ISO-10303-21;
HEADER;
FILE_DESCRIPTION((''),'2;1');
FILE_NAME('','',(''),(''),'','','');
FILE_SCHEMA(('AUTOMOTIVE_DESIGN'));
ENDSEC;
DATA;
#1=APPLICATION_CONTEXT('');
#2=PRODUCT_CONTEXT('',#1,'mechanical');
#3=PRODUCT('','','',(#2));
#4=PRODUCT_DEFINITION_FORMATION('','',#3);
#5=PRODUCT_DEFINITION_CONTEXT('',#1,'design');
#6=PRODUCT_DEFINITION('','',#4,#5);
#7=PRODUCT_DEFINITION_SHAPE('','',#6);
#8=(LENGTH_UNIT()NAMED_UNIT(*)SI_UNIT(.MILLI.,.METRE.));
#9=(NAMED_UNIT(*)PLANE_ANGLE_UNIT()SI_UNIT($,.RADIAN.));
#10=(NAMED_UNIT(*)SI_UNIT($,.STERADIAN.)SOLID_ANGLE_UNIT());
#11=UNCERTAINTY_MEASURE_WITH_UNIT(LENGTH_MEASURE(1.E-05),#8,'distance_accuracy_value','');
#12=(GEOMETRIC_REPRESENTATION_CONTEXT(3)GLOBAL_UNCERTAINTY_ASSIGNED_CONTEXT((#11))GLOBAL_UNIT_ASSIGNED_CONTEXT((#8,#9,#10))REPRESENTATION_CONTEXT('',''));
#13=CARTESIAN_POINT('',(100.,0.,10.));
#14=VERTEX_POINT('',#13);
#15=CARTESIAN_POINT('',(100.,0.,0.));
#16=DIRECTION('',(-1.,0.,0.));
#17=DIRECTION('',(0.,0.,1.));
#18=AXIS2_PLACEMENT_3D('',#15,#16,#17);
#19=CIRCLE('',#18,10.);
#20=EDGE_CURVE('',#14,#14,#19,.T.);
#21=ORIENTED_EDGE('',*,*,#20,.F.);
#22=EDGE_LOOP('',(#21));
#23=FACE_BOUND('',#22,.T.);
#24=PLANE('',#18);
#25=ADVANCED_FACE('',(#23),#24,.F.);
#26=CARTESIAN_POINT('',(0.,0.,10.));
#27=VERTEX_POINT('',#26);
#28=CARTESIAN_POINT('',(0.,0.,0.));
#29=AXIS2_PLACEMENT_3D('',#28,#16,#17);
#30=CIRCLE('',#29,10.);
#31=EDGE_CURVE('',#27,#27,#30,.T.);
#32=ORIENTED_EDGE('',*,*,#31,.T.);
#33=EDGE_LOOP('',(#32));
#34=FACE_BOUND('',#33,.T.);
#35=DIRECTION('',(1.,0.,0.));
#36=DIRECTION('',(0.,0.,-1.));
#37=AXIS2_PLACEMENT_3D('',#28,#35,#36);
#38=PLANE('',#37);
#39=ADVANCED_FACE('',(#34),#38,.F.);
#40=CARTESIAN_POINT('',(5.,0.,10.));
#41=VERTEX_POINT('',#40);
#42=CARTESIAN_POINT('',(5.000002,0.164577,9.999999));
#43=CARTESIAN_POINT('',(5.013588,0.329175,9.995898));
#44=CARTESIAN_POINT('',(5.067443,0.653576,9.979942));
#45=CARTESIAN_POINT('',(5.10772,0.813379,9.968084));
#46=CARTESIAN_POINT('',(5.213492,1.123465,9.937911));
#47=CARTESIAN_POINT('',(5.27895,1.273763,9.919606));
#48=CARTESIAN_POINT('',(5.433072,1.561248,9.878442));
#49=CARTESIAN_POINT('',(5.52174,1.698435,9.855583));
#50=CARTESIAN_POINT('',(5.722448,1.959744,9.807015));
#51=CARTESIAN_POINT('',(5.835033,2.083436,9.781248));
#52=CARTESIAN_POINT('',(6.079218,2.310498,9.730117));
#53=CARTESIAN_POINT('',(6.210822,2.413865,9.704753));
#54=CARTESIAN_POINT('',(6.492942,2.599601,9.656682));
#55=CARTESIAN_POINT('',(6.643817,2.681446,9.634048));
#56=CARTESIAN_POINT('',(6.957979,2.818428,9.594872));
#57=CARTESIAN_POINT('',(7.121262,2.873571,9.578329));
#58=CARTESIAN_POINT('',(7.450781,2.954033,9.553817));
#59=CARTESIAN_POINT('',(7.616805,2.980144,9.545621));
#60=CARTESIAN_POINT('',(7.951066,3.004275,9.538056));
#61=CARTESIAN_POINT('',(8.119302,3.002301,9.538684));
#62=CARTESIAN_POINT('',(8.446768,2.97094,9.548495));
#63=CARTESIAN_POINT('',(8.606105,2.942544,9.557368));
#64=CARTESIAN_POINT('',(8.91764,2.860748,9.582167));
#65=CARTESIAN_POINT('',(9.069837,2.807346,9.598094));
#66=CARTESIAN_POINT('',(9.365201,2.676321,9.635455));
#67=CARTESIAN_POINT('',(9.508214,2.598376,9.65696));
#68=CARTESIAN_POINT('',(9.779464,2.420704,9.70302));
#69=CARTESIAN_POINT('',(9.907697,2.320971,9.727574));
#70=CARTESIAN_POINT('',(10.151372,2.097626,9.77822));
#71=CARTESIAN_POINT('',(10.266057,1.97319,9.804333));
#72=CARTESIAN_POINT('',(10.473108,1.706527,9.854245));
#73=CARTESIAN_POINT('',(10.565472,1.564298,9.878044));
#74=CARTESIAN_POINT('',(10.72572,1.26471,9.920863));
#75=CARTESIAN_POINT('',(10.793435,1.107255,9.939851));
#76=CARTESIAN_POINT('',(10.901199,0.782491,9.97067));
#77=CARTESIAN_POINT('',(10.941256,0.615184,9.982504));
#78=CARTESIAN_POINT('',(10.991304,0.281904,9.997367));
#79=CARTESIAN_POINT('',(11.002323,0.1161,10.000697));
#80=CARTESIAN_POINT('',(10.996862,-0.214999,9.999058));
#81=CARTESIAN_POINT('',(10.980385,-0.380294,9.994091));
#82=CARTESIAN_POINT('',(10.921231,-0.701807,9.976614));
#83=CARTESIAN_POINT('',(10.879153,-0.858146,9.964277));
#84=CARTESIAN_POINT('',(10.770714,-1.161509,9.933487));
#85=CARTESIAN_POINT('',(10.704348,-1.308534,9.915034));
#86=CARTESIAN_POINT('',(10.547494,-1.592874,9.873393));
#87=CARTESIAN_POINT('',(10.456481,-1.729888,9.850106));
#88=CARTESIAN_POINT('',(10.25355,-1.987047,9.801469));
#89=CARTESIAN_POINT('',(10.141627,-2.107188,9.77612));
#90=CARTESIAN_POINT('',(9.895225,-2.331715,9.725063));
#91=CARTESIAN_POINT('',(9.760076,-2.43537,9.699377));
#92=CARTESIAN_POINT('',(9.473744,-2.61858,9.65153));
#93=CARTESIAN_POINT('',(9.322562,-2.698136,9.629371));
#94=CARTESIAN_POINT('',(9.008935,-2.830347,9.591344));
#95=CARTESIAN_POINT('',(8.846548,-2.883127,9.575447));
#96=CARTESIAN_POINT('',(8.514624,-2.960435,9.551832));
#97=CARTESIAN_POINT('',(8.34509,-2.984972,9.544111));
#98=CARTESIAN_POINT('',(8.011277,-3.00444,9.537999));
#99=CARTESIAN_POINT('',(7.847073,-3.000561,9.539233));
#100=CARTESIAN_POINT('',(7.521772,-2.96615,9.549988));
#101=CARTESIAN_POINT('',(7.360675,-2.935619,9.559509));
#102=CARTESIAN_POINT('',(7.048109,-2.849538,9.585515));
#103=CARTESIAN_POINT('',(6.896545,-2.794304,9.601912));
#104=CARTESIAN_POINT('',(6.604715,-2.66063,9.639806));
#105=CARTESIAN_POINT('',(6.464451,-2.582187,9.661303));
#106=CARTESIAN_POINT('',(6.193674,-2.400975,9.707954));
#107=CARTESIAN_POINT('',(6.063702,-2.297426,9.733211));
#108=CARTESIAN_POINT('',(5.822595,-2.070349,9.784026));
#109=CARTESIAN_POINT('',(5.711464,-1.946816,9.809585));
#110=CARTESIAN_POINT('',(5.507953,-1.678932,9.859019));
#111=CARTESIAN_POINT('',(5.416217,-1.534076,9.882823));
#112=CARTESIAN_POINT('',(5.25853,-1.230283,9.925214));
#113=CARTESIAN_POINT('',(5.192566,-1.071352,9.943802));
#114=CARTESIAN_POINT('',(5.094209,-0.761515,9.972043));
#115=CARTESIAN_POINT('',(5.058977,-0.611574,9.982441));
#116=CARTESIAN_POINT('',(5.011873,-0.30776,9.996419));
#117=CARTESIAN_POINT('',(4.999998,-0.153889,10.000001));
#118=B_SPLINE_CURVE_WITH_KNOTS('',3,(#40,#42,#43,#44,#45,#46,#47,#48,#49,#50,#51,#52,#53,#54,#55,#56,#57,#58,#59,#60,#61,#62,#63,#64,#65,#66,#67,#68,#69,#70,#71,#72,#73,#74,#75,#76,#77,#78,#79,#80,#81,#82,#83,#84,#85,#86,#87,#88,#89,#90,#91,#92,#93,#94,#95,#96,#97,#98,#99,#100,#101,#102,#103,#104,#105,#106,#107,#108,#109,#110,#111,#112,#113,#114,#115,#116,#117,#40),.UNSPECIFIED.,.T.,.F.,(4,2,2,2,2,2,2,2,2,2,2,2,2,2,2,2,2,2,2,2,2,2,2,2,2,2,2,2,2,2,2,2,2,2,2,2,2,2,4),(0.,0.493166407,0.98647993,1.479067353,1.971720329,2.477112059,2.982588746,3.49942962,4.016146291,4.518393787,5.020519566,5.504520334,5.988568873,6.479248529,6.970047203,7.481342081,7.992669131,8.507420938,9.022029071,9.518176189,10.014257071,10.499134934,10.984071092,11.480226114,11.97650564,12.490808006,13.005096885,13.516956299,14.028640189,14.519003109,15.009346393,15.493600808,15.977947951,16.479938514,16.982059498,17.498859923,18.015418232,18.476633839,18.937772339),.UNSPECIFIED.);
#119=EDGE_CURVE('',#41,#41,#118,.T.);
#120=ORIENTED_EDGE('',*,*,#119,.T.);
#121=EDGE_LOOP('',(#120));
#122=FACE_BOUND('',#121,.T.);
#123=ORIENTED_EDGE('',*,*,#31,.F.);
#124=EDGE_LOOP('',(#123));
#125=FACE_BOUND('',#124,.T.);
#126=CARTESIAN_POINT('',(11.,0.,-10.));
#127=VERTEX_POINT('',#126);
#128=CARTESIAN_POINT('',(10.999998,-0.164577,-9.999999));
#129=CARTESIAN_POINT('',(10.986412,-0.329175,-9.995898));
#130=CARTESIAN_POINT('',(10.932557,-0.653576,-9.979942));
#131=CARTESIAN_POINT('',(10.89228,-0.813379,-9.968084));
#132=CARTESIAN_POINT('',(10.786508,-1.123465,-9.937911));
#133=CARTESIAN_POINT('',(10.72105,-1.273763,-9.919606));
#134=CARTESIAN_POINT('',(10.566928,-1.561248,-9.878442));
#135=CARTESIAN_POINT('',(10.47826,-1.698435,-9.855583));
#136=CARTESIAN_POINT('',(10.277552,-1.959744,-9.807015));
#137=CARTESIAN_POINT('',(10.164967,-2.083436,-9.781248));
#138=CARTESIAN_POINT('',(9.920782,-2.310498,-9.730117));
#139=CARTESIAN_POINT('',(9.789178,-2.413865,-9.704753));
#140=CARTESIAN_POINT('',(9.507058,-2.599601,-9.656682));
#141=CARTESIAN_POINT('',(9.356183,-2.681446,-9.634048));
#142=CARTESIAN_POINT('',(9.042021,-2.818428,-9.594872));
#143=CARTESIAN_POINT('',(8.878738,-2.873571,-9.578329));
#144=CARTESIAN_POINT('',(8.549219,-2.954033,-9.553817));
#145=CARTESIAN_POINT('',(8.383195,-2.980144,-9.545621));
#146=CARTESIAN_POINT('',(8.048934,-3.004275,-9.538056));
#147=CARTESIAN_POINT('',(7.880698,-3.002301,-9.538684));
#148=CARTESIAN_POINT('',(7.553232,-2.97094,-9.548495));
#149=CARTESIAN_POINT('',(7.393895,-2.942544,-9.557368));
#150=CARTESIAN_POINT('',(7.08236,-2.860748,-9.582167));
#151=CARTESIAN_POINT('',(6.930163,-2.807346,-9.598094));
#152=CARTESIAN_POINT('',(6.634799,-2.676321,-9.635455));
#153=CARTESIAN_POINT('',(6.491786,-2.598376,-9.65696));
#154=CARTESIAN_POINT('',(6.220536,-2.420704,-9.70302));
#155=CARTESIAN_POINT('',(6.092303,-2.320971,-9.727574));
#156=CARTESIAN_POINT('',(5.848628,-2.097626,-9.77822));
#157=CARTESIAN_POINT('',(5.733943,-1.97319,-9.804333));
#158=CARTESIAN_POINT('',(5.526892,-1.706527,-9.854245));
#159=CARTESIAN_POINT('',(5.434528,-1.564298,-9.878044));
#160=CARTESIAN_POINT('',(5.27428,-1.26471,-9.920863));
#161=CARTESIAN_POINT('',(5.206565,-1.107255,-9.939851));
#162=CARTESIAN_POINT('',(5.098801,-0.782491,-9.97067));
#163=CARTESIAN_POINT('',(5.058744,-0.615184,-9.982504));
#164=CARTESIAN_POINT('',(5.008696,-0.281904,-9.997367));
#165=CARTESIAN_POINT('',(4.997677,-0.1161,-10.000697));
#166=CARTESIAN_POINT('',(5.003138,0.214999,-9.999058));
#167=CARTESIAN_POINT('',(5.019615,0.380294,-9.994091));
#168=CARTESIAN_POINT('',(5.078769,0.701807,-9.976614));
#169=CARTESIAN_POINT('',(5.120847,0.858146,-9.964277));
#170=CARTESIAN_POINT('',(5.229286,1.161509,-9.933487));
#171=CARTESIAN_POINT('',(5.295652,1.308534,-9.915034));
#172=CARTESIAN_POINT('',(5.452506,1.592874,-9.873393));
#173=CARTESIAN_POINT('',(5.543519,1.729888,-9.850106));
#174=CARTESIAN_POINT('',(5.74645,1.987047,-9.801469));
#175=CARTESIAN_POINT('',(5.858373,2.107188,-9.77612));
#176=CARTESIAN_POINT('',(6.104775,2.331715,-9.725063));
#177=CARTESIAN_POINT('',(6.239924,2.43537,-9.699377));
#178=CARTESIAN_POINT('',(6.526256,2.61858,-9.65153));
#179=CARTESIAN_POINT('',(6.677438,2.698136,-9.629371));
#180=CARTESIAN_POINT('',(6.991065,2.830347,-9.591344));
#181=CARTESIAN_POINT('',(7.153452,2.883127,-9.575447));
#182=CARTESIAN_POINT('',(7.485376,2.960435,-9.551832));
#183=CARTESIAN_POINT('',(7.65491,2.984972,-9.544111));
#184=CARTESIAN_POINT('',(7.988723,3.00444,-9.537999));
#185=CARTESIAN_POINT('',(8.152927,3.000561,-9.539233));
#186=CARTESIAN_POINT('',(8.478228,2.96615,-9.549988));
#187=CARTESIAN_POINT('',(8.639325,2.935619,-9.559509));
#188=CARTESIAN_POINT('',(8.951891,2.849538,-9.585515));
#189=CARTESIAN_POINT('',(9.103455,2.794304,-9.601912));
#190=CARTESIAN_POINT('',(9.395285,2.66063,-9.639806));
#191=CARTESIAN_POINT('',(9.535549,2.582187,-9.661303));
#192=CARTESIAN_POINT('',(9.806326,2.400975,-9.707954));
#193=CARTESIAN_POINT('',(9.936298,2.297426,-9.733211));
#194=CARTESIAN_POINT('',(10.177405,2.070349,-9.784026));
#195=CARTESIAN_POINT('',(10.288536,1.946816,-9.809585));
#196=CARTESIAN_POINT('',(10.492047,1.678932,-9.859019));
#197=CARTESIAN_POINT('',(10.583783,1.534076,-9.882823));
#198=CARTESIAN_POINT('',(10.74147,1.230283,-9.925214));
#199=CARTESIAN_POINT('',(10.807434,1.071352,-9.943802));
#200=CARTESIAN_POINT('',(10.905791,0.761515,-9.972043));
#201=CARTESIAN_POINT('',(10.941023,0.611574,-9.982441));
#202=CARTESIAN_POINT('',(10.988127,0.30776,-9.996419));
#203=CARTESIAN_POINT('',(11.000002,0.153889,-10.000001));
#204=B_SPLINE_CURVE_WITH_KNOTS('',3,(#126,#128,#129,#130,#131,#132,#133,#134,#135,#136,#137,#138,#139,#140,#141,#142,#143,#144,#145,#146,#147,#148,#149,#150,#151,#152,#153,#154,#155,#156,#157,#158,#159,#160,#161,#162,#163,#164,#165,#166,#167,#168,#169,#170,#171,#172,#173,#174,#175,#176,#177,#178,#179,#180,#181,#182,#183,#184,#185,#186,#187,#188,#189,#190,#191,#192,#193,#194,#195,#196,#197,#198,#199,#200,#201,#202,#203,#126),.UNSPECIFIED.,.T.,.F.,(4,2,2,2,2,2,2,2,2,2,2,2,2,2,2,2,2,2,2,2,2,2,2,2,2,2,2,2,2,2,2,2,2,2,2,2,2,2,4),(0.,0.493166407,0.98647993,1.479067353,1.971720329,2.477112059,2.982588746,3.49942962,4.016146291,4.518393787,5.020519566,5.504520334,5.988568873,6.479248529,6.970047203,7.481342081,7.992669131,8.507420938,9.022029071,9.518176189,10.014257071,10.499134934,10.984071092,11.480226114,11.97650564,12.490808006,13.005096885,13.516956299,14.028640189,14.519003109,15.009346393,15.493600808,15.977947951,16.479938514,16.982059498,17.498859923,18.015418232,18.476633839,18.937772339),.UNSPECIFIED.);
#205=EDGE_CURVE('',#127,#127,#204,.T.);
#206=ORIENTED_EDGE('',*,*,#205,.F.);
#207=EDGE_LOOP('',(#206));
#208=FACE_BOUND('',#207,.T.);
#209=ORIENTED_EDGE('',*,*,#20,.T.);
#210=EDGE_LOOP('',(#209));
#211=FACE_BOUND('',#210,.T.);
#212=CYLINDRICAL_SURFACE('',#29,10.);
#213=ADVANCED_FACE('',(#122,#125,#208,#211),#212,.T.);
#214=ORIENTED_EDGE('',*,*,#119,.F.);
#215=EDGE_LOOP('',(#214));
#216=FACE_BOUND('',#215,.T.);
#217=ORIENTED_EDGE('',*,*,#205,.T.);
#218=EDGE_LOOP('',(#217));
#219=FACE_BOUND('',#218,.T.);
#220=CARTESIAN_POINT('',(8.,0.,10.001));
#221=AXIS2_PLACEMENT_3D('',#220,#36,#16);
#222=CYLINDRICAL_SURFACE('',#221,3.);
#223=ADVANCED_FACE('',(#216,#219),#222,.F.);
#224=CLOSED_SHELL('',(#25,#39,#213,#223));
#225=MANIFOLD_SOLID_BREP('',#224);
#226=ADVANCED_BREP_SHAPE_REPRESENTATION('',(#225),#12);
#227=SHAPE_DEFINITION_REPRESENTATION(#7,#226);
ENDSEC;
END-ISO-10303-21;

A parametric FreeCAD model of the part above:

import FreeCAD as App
import Part
import Sketcher

V = App.Vector
Q = App.Units.Quantity

doc = App.newDocument("Part")
params = doc.addObject("Spreadsheet::Sheet", "Params")
for row, (alias, value) in enumerate([
    ("sketch1_width", "100 mm"),
    ("sketch1_height", "10 mm"),
    ("revolution_angle", "360 deg"),
    ("sketch2_diameter", "6 mm"),
    ("pocket1_length", "10 mm"),
    ("sketch3_diameter", "6 mm"),
], start=1):
    params.set(f"A{row}", alias)
    params.set(f"B{row}", "=" + value)
    params.setAlias(f"B{row}", alias)

body = doc.addObject("PartDesign::Body", "Body")

sketch1 = doc.addObject("Sketcher::SketchObject", "Sketch")
body.addObject(sketch1)
sketch1.AttachmentSupport = (doc.XY_Plane, [""])
sketch1.MapMode = "FlatFace"
sketch1.addGeometry([
    Part.LineSegment(V(0, 10, 0), V(0, 0, 0)),
    Part.LineSegment(V(0, 0, 0), V(100, 0, 0)),
    Part.LineSegment(V(100, 0, 0), V(100, 10, 0)),
    Part.LineSegment(V(100, 10, 0), V(0, 10, 0)),
], False)
sketch1.addConstraint([
    Sketcher.Constraint("Coincident", 0, 2, 1, 1),
    Sketcher.Constraint("Coincident", 1, 2, 2, 1),
    Sketcher.Constraint("Coincident", 2, 2, 3, 1),
    Sketcher.Constraint("Coincident", 3, 2, 0, 1),
    Sketcher.Constraint("Vertical", 0),
    Sketcher.Constraint("Horizontal", 1),
    Sketcher.Constraint("Vertical", 2),
    Sketcher.Constraint("Horizontal", 3),
    Sketcher.Constraint("Coincident", 0, 2, -1, 1),
    Sketcher.Constraint("DistanceX", 1, 1, 1, 2, Q("100 mm")),
    Sketcher.Constraint("DistanceY", 0, 2, 0, 1, Q("10 mm")),
])
sketch1.setExpression("Constraints[9]", "Params.sketch1_width")
sketch1.setExpression("Constraints[10]", "Params.sketch1_height")
revolution = doc.addObject("PartDesign::Revolution", "Revolution")
body.addObject(revolution)
revolution.Profile = sketch1
revolution.ReferenceAxis = (sketch1, ["H_Axis"])
revolution.setExpression("Angle", "Params.revolution_angle")

sketch2 = doc.addObject("Sketcher::SketchObject", "Sketch001")
body.addObject(sketch2)
sketch2.AttachmentSupport = (doc.XY_Plane, [""])
sketch2.MapMode = "FlatFace"
sketch2.addGeometry(Part.Circle(V(8, 0, 0), V(0, 0, 1), 3), False)
sketch2.addConstraint([
    Sketcher.Constraint("PointOnObject", 0, 3, -1),
    Sketcher.Constraint("Diameter", 0, Q("6 mm")),
    Sketcher.Constraint("DistanceX", -1, 1, 0, 3, Q("8 mm")),
])
sketch2.setExpression("Constraints[1]", "Params.sketch2_diameter")
pocket1 = doc.addObject("PartDesign::Pocket", "Pocket")
body.addObject(pocket1)
pocket1.Profile = sketch2
pocket1.setExpression("Length", "Params.pocket1_length")

sketch3 = doc.addObject("Sketcher::SketchObject", "Sketch002")
body.addObject(sketch3)
sketch3.AttachmentSupport = (doc.XY_Plane, [""])
sketch3.MapMode = "FlatFace"
sketch3.addGeometry(Part.Circle(V(8, 0, 0), V(0, 0, 1), 3), False)
sketch3.addConstraint([
    Sketcher.Constraint("PointOnObject", 0, 3, -1),
    Sketcher.Constraint("Diameter", 0, Q("6 mm")),
    Sketcher.Constraint("DistanceX", -1, 1, 0, 3, Q("8 mm")),
])
sketch3.setExpression("Constraints[1]", "Params.sketch3_diameter")
pocket2 = doc.addObject("PartDesign::Pocket", "Pocket001")
body.addObject(pocket2)
pocket2.Profile = sketch3
pocket2.Type = "UpToFirst"
pocket2.Reversed = True

doc.recompute()
